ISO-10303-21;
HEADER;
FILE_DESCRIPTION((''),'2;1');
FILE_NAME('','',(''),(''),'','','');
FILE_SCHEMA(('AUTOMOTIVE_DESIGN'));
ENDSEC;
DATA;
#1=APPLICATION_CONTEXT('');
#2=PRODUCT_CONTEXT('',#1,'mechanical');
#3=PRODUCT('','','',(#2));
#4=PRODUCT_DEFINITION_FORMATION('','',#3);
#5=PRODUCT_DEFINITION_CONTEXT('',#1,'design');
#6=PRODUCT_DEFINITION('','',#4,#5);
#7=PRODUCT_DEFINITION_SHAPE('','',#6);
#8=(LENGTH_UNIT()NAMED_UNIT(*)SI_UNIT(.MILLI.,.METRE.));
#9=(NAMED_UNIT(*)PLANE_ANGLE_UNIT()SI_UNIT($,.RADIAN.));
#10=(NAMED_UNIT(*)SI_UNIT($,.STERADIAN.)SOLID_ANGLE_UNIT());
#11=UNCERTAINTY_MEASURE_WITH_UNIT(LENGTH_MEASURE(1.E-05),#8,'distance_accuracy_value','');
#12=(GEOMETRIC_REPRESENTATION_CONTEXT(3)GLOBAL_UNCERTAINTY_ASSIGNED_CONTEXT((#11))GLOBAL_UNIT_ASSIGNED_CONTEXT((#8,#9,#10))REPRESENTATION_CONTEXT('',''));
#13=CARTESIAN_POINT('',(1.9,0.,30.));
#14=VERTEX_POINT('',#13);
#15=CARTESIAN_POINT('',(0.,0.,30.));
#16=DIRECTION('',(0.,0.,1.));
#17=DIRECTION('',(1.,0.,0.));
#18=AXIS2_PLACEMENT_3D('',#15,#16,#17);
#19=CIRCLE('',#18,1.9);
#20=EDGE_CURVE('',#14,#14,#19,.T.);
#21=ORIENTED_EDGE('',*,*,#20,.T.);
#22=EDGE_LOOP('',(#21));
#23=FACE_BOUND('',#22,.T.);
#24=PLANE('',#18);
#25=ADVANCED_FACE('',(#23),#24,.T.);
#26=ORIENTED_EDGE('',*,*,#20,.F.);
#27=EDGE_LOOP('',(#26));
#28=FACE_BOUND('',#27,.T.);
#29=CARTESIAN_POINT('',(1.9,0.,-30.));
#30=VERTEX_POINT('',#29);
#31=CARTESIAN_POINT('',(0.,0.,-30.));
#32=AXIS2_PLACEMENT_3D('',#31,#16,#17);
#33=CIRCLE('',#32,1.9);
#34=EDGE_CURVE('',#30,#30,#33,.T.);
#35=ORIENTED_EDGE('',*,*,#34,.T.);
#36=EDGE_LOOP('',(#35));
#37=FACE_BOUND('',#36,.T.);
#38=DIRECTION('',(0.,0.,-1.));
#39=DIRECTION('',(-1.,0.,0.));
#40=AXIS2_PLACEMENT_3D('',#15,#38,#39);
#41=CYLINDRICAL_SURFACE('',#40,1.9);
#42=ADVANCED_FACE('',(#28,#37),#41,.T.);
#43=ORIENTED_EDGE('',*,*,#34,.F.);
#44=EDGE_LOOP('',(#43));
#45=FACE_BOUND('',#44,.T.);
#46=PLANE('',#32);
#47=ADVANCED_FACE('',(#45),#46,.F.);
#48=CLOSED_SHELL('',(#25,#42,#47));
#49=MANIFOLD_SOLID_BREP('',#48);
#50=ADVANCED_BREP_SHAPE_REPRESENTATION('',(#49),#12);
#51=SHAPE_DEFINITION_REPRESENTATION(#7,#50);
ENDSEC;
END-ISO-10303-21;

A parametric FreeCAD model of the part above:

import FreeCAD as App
import Part
import Sketcher
Q = App.Units.Quantity

doc = App.newDocument("Part")
params = doc.addObject("Spreadsheet::Sheet", "Params")
for row, (alias, value) in enumerate([
    ("sketch1_diameter", "3.8 mm"),
    ("pad1_length", "60 mm"),
], start=1):
    params.set(f"A{row}", alias)
    params.set(f"B{row}", "=" + value)
    params.setAlias(f"B{row}", alias)

body = doc.addObject("PartDesign::Body", "Body")

sketch1 = doc.addObject("Sketcher::SketchObject", "Sketch")
body.addObject(sketch1)
sketch1.AttachmentSupport = (doc.XY_Plane, [""])
sketch1.MapMode = "FlatFace"
sketch1.addGeometry(Part.Circle(App.Vector(0, 0, 0), App.Vector(0, 0, 1), 1.9), False)
sketch1.addConstraint(Sketcher.Constraint("Coincident", 0, 3, -1, 1))
sketch1.addConstraint(Sketcher.Constraint("Diameter", 0, Q("3.8 mm")))
sketch1.setExpression("Constraints[1]", "Params.sketch1_diameter")
pad1 = doc.addObject("PartDesign::Pad", "Pad")
body.addObject(pad1)
pad1.Profile = sketch1
pad1.setExpression("Length", "Params.pad1_length")
pad1.Midplane = True

doc.recompute()
